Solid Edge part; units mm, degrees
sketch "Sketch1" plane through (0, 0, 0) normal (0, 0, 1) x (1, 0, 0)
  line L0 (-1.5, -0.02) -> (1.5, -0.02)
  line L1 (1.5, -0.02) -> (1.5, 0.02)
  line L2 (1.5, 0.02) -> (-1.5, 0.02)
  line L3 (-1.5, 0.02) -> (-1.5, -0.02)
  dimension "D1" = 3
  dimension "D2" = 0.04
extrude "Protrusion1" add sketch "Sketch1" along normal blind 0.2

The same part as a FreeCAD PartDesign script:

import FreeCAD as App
import Part
import Sketcher

V = App.Vector

doc = App.newDocument("Part")
params = doc.addObject("Spreadsheet::Sheet", "Params")
for row, (alias, value) in enumerate([
    ("sketch1_height", "0.04 mm"),
    ("pad1_length", "0.2 mm"),
], start=1):
    params.set(f"A{row}", alias)
    params.set(f"B{row}", "=" + value)
    params.setAlias(f"B{row}", alias)

body = doc.addObject("PartDesign::Body", "Body")

sketch1 = doc.addObject("Sketcher::SketchObject", "Sketch")
body.addObject(sketch1)
sketch1.AttachmentSupport = (doc.XY_Plane, [""])
sketch1.MapMode = "FlatFace"
sketch1.addGeometry([
    Part.LineSegment(V(-1.5, 0.02, 0), V(-1.5, -0.02, 0)),
    Part.LineSegment(V(-1.5, -0.02, 0), V(1.5, -0.02, 0)),
    Part.LineSegment(V(1.5, -0.02, 0), V(1.5, 0.02, 0)),
    Part.LineSegment(V(1.5, 0.02, 0), V(-1.5, 0.02, 0)),
], False)
sketch1.addConstraint([
    Sketcher.Constraint("Coincident", 0, 2, 1, 1),
    Sketcher.Constraint("Coincident", 1, 2, 2, 1),
    Sketcher.Constraint("Coincident", 2, 2, 3, 1),
    Sketcher.Constraint("Coincident", 3, 2, 0, 1),
    Sketcher.Constraint("Vertical", 0),
    Sketcher.Constraint("Horizontal", 1),
    Sketcher.Constraint("Vertical", 2),
    Sketcher.Constraint("Horizontal", 3),
    Sketcher.Constraint("Symmetric", 0, 2, 2, 2, -1, 1),
    Sketcher.Constraint("DistanceX", 0, 2, -1, 1, 1.5),
    Sketcher.Constraint("DistanceY", 0, 2, 0, 1, 0.04),
])
sketch1.setExpression("Constraints[10]", "Params.sketch1_height")
pad1 = doc.addObject("PartDesign::Pad", "Pad")
body.addObject(pad1)
pad1.Profile = sketch1
pad1.setExpression("Length", "Params.pad1_length")

doc.recompute()
